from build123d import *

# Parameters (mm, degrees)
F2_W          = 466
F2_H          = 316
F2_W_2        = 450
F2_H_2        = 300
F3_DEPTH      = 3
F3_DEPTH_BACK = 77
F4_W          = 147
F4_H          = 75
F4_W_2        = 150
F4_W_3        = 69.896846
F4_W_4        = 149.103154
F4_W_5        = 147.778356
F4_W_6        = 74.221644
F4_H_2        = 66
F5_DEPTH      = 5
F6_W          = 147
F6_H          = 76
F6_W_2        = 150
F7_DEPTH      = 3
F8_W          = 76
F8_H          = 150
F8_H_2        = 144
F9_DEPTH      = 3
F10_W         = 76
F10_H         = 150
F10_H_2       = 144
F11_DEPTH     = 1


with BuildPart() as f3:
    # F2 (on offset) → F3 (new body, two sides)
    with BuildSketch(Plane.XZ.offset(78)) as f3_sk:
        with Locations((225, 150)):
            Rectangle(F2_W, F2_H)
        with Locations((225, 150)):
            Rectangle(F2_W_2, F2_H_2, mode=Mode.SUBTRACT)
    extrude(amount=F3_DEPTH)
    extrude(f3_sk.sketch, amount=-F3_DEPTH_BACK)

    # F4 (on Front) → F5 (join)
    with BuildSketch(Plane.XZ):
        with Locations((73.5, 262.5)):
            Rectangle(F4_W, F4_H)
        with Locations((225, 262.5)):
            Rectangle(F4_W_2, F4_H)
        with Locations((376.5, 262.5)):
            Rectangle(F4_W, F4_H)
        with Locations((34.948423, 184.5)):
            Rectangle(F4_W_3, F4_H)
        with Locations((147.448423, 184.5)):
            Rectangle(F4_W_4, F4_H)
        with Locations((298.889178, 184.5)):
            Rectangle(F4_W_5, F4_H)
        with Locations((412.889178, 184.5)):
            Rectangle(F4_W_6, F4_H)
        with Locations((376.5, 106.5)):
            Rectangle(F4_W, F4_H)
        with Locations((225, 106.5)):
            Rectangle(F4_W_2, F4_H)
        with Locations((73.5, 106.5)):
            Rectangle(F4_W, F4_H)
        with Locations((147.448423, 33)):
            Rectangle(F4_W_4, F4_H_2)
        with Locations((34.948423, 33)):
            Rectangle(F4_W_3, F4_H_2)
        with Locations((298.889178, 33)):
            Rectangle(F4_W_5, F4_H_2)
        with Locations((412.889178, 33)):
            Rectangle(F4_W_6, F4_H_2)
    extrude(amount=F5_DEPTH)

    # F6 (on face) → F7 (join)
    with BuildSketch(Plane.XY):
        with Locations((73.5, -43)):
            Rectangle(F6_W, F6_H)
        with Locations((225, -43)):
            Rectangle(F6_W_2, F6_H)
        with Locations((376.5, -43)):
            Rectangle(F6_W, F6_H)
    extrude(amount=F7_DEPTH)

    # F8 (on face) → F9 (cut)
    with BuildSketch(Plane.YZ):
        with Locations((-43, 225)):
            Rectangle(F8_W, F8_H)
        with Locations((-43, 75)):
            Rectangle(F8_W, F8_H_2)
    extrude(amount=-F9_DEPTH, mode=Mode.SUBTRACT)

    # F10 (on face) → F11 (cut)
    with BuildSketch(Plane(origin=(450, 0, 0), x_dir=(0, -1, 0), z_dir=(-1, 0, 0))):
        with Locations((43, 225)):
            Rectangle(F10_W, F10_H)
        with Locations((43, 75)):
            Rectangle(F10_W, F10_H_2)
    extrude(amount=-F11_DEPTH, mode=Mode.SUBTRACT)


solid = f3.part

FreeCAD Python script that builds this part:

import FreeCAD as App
import Part
import Sketcher
from FreeCAD import Vector

doc = App.newDocument("Part")
body = doc.addObject("PartDesign::Body", "Body")
body.AllowCompound = True

# Sketch on XZ plane
sketch1 = body.newObject("Sketcher::SketchObject", "Sketch")
sketch1.AttachmentSupport = (doc.getObject("XZ_Plane"), [""])
sketch1.MapMode = "FlatFace"
sketch1.AttachmentOffset = App.Placement(Vector(0, 0, 78), App.Rotation())
sketch1.addGeometry([
    Part.LineSegment(Vector(-8, 308, 0), Vector(-8, -8, 0)),  # 0
    Part.LineSegment(Vector(-8, -8, 0), Vector(458, -8, 0)),  # 1
    Part.LineSegment(Vector(458, -8, 0), Vector(458, 308, 0)),  # 2
    Part.LineSegment(Vector(458, 308, 0), Vector(-8, 308, 0)),  # 3
    Part.LineSegment(Vector(450, 0, 0), Vector(0, 0, 0)),  # 4
    Part.LineSegment(Vector(0, 0, 0), Vector(0, 300, 0)),  # 5
    Part.LineSegment(Vector(0, 300, 0), Vector(450, 300, 0)),  # 6
    Part.LineSegment(Vector(450, 300, 0), Vector(450, 0, 0)),  # 7
], False)
sketch1.addConstraint([
    Sketcher.Constraint("Coincident", 0, 2, 1, 1),
    Sketcher.Constraint("Coincident", 1, 2, 2, 1),
    Sketcher.Constraint("Coincident", 2, 2, 3, 1),
    Sketcher.Constraint("Coincident", 3, 2, 0, 1),
    Sketcher.Constraint("Coincident", 4, 2, 5, 1),
    Sketcher.Constraint("Coincident", 5, 2, 6, 1),
    Sketcher.Constraint("Coincident", 6, 2, 7, 1),
    Sketcher.Constraint("Coincident", 7, 2, 4, 1),
    Sketcher.Constraint("Vertical", 0),
    Sketcher.Constraint("Horizontal", 1),
    Sketcher.Constraint("Vertical", 2),
    Sketcher.Constraint("Horizontal", 3),
    Sketcher.Constraint("Horizontal", 4),
    Sketcher.Constraint("Vertical", 5),
    Sketcher.Constraint("Horizontal", 6),
    Sketcher.Constraint("Vertical", 7),
    Sketcher.Constraint("Coincident", 4, 2, -1, 1),
    Sketcher.Constraint("DistanceX", 1, 1, 1, 2, 466.0),
    Sketcher.Constraint("DistanceX", 4, 2, 4, 1, 450.0),
    Sketcher.Constraint("DistanceY", 0, 2, 0, 1, 316.0),
    Sketcher.Constraint("DistanceY", 5, 1, 5, 2, 300.0),
    Sketcher.Constraint("DistanceX", 0, 2, -1, 1, 8.0),
    Sketcher.Constraint("DistanceY", 0, 2, -1, 1, 8.0),
])
pad1 = body.newObject("PartDesign::Pad", "Pad")
pad1.Profile = sketch1
pad1.Type = "TwoLengths"
pad1.Length = 3
pad1.Length2 = 77

# Sketch on XZ plane
sketch2 = body.newObject("Sketcher::SketchObject", "Sketch001")
sketch2.AttachmentSupport = (doc.getObject("XZ_Plane"), [""])
sketch2.MapMode = "FlatFace"
sketch2.addGeometry([
    Part.LineSegment(Vector(0, 300, 0), Vector(0, 225, 0)),  # 0
    Part.LineSegment(Vector(0, 225, 0), Vector(147, 225, 0)),  # 1
    Part.LineSegment(Vector(147, 225, 0), Vector(147, 300, 0)),  # 2
    Part.LineSegment(Vector(147, 300, 0), Vector(0, 300, 0)),  # 3
    Part.LineSegment(Vector(150, 300, 0), Vector(150, 225, 0)),  # 4
    Part.LineSegment(Vector(150, 225, 0), Vector(300, 225, 0)),  # 5
    Part.LineSegment(Vector(300, 225, 0), Vector(300, 300, 0)),  # 6
    Part.LineSegment(Vector(300, 300, 0), Vector(150, 300, 0)),  # 7
    Part.LineSegment(Vector(303, 300, 0), Vector(303, 225, 0)),  # 8
    Part.LineSegment(Vector(303, 225, 0), Vector(450, 225, 0)),  # 9
    Part.LineSegment(Vector(450, 225, 0), Vector(450, 300, 0)),  # 10
    Part.LineSegment(Vector(450, 300, 0), Vector(303, 300, 0)),  # 11
    Part.LineSegment(Vector(0, 222, 0), Vector(0, 147, 0)),  # 12
    Part.LineSegment(Vector(0, 147, 0), Vector(70, 147, 0)),  # 13
    Part.LineSegment(Vector(70, 147, 0), Vector(70, 222, 0)),  # 14
    Part.LineSegment(Vector(70, 222, 0), Vector(0, 222, 0)),  # 15
    Part.LineSegment(Vector(73, 222, 0), Vector(73, 147, 0)),  # 16
    Part.LineSegment(Vector(73, 147, 0), Vector(222, 147, 0)),  # 17
    Part.LineSegment(Vector(222, 147, 0), Vector(222, 222, 0)),  # 18
    Part.LineSegment(Vector(222, 222, 0), Vector(73, 222, 0)),  # 19
    Part.LineSegment(Vector(225, 222, 0), Vector(225, 147, 0)),  # 20
    Part.LineSegment(Vector(225, 147, 0), Vector(373, 147, 0)),  # 21
    Part.LineSegment(Vector(373, 147, 0), Vector(373, 222, 0)),  # 22
    Part.LineSegment(Vector(373, 222, 0), Vector(225, 222, 0)),  # 23
    Part.LineSegment(Vector(376, 222, 0), Vector(376, 147, 0)),  # 24
    Part.LineSegment(Vector(376, 147, 0), Vector(450, 147, 0)),  # 25
    Part.LineSegment(Vector(450, 147, 0), Vector(450, 222, 0)),  # 26
    Part.LineSegment(Vector(450, 222, 0), Vector(376, 222, 0)),  # 27
    Part.LineSegment(Vector(303, 144, 0), Vector(303, 69, 0)),  # 28
    Part.LineSegment(Vector(303, 69, 0), Vector(450, 69, 0)),  # 29
    Part.LineSegment(Vector(450, 69, 0), Vector(450, 144, 0)),  # 30
    Part.LineSegment(Vector(450, 144, 0), Vector(303, 144, 0)),  # 31
    Part.LineSegment(Vector(150, 144, 0), Vector(150, 69, 0)),  # 32
    Part.LineSegment(Vector(150, 69, 0), Vector(300, 69, 0)),  # 33
    Part.LineSegment(Vector(300, 69, 0), Vector(300, 144, 0)),  # 34
    Part.LineSegment(Vector(300, 144, 0), Vector(150, 144, 0)),  # 35
    Part.LineSegment(Vector(0, 144, 0), Vector(0, 69, 0)),  # 36
    Part.LineSegment(Vector(0, 69, 0), Vector(147, 69, 0)),  # 37
    Part.LineSegment(Vector(147, 69, 0), Vector(147, 144, 0)),  # 38
    Part.LineSegment(Vector(147, 144, 0), Vector(0, 144, 0)),  # 39
    Part.LineSegment(Vector(73, 66, 0), Vector(73, 0, 0)),  # 40
    Part.LineSegment(Vector(73, 0, 0), Vector(222, 0, 0)),  # 41
    Part.LineSegment(Vector(222, 0, 0), Vector(222, 66, 0)),  # 42
    Part.LineSegment(Vector(222, 66, 0), Vector(73, 66, 0)),  # 43
    Part.LineSegment(Vector(0, 66, 0), Vector(0, 0, 0)),  # 44
    Part.LineSegment(Vector(0, 0, 0), Vector(70, 0, 0)),  # 45
    Part.LineSegment(Vector(70, 0, 0), Vector(70, 66, 0)),  # 46
    Part.LineSegment(Vector(70, 66, 0), Vector(0, 66, 0)),  # 47
    Part.LineSegment(Vector(225, 66, 0), Vector(225, 0, 0)),  # 48
    Part.LineSegment(Vector(225, 0, 0), Vector(373, 0, 0)),  # 49
    Part.LineSegment(Vector(373, 0, 0), Vector(373, 66, 0)),  # 50
    Part.LineSegment(Vector(373, 66, 0), Vector(225, 66, 0)),  # 51
    Part.LineSegment(Vector(376, 66, 0), Vector(376, 0, 0)),  # 52
    Part.LineSegment(Vector(376, 0, 0), Vector(450, 0, 0)),  # 53
    Part.LineSegment(Vector(450, 0, 0), Vector(450, 66, 0)),  # 54
    Part.LineSegment(Vector(450, 66, 0), Vector(376, 66, 0)),  # 55
], False)
sketch2.addConstraint([
    Sketcher.Constraint("Coincident", 0, 2, 1, 1),
    Sketcher.Constraint("Coincident", 1, 2, 2, 1),
    Sketcher.Constraint("Coincident", 2, 2, 3, 1),
    Sketcher.Constraint("Coincident", 3, 2, 0, 1),
    Sketcher.Constraint("Coincident", 4, 2, 5, 1),
    Sketcher.Constraint("Coincident", 5, 2, 6, 1),
    Sketcher.Constraint("Coincident", 6, 2, 7, 1),
    Sketcher.Constraint("Coincident", 7, 2, 4, 1),
    Sketcher.Constraint("Coincident", 8, 2, 9, 1),
    Sketcher.Constraint("Coincident", 9, 2, 10, 1),
    Sketcher.Constraint("Coincident", 10, 2, 11, 1),
    Sketcher.Constraint("Coincident", 11, 2, 8, 1),
    Sketcher.Constraint("Coincident", 12, 2, 13, 1),
    Sketcher.Constraint("Coincident", 13, 2, 14, 1),
    Sketcher.Constraint("Coincident", 14, 2, 15, 1),
    Sketcher.Constraint("Coincident", 15, 2, 12, 1),
    Sketcher.Constraint("Coincident", 16, 2, 17, 1),
    Sketcher.Constraint("Coincident", 17, 2, 18, 1),
    Sketcher.Constraint("Coincident", 18, 2, 19, 1),
    Sketcher.Constraint("Coincident", 19, 2, 16, 1),
    Sketcher.Constraint("Coincident", 20, 2, 21, 1),
    Sketcher.Constraint("Coincident", 21, 2, 22, 1),
    Sketcher.Constraint("Coincident", 22, 2, 23, 1),
    Sketcher.Constraint("Coincident", 23, 2, 20, 1),
    Sketcher.Constraint("Coincident", 24, 2, 25, 1),
    Sketcher.Constraint("Coincident", 25, 2, 26, 1),
    Sketcher.Constraint("Coincident", 26, 2, 27, 1),
    Sketcher.Constraint("Coincident", 27, 2, 24, 1),
    Sketcher.Constraint("Coincident", 28, 2, 29, 1),
    Sketcher.Constraint("Coincident", 29, 2, 30, 1),
    Sketcher.Constraint("Coincident", 30, 2, 31, 1),
    Sketcher.Constraint("Coincident", 31, 2, 28, 1),
    Sketcher.Constraint("Coincident", 32, 2, 33, 1),
    Sketcher.Constraint("Coincident", 33, 2, 34, 1),
    Sketcher.Constraint("Coincident", 34, 2, 35, 1),
    Sketcher.Constraint("Coincident", 35, 2, 32, 1),
    Sketcher.Constraint("Coincident", 36, 2, 37, 1),
    Sketcher.Constraint("Coincident", 37, 2, 38, 1),
    Sketcher.Constraint("Coincident", 38, 2, 39, 1),
    Sketcher.Constraint("Coincident", 39, 2, 36, 1),
    Sketcher.Constraint("Coincident", 40, 2, 41, 1),
    Sketcher.Constraint("Coincident", 41, 2, 42, 1),
    Sketcher.Constraint("Coincident", 42, 2, 43, 1),
    Sketcher.Constraint("Coincident", 43, 2, 40, 1),
    Sketcher.Constraint("Coincident", 44, 2, 45, 1),
    Sketcher.Constraint("Coincident", 45, 2, 46, 1),
    Sketcher.Constraint("Coincident", 46, 2, 47, 1),
    Sketcher.Constraint("Coincident", 47, 2, 44, 1),
    Sketcher.Constraint("Coincident", 48, 2, 49, 1),
    Sketcher.Constraint("Coincident", 49, 2, 50, 1),
    Sketcher.Constraint("Coincident", 50, 2, 51, 1),
    Sketcher.Constraint("Coincident", 51, 2, 48, 1),
    Sketcher.Constraint("Coincident", 52, 2, 53, 1),
    Sketcher.Constraint("Coincident", 53, 2, 54, 1),
    Sketcher.Constraint("Coincident", 54, 2, 55, 1),
    Sketcher.Constraint("Coincident", 55, 2, 52, 1),
    Sketcher.Constraint("Vertical", 0),
    Sketcher.Constraint("Horizontal", 1),
    Sketcher.Constraint("Vertical", 2),
    Sketcher.Constraint("Horizontal", 3),
    Sketcher.Constraint("Vertical", 4),
    Sketcher.Constraint("Horizontal", 5),
    Sketcher.Constraint("Vertical", 6),
    Sketcher.Constraint("Horizontal", 7),
    Sketcher.Constraint("Vertical", 8),
    Sketcher.Constraint("Horizontal", 9),
    Sketcher.Constraint("Vertical", 10),
    Sketcher.Constraint("Horizontal", 11),
    Sketcher.Constraint("Vertical", 12),
    Sketcher.Constraint("Horizontal", 13),
    Sketcher.Constraint("Vertical", 14),
    Sketcher.Constraint("Horizontal", 15),
    Sketcher.Constraint("Vertical", 16),
    Sketcher.Constraint("Horizontal", 17),
    Sketcher.Constraint("Vertical", 18),
    Sketcher.Constraint("Horizontal", 19),
    Sketcher.Constraint("Vertical", 20),
    Sketcher.Constraint("Horizontal", 21),
    Sketcher.Constraint("Vertical", 22),
    Sketcher.Constraint("Horizontal", 23),
    Sketcher.Constraint("Vertical", 24),
    Sketcher.Constraint("Horizontal", 25),
    Sketcher.Constraint("Vertical", 26),
    Sketcher.Constraint("Horizontal", 27),
    Sketcher.Constraint("Vertical", 28),
    Sketcher.Constraint("Horizontal", 29),
    Sketcher.Constraint("Vertical", 30),
    Sketcher.Constraint("Horizontal", 31),
    Sketcher.Constraint("Vertical", 32),
    Sketcher.Constraint("Horizontal", 33),
    Sketcher.Constraint("Vertical", 34),
    Sketcher.Constraint("Horizontal", 35),
    Sketcher.Constraint("Vertical", 36),
    Sketcher.Constraint("Horizontal", 37),
    Sketcher.Constraint("Vertical", 38),
    Sketcher.Constraint("Horizontal", 39),
    Sketcher.Constraint("Vertical", 40),
    Sketcher.Constraint("Horizontal", 41),
    Sketcher.Constraint("Vertical", 42),
    Sketcher.Constraint("Horizontal", 43),
    Sketcher.Constraint("Vertical", 44),
    Sketcher.Constraint("Horizontal", 45),
    Sketcher.Constraint("Vertical", 46),
    Sketcher.Constraint("Horizontal", 47),
    Sketcher.Constraint("Vertical", 48),
    Sketcher.Constraint("Horizontal", 49),
    Sketcher.Constraint("Vertical", 50),
    Sketcher.Constraint("Horizontal", 51),
    Sketcher.Constraint("Vertical", 52),
    Sketcher.Constraint("Horizontal", 53),
    Sketcher.Constraint("Vertical", 54),
    Sketcher.Constraint("Horizontal", 55),
    Sketcher.Constraint("Coincident", 44, 2, -1, 1),
    Sketcher.Constraint("PointOnObject", 0, 2, -2),
    Sketcher.Constraint("PointOnObject", 12, 2, -2),
    Sketcher.Constraint("PointOnObject", 36, 2, -2),
    Sketcher.Constraint("PointOnObject", 40, 2, -1),
    Sketcher.Constraint("PointOnObject", 48, 2, -1),
    Sketcher.Constraint("PointOnObject", 52, 2, -1),
    Sketcher.Constraint("Horizontal", 1, 2, 4, 2),
    Sketcher.Constraint("Horizontal", 3, 2, 6, 2),
    Sketcher.Constraint("Horizontal", 5, 2, 8, 2),
    Sketcher.Constraint("Horizontal", 7, 2, 10, 2),
    Sketcher.Constraint("Horizontal", 13, 2, 16, 2),
    Sketcher.Constraint("Horizontal", 15, 2, 18, 2),
    Sketcher.Constraint("Horizontal", 17, 2, 20, 2),
    Sketcher.Constraint("Horizontal", 19, 2, 22, 2),
    Sketcher.Constraint("Horizontal", 21, 2, 24, 2),
    Sketcher.Constraint("Horizontal", 23, 2, 26, 2),
    Sketcher.Constraint("Horizontal", 29, 2, 32, 2),
    Sketcher.Constraint("Horizontal", 31, 2, 34, 2),
    Sketcher.Constraint("Horizontal", 33, 2, 36, 2),
    Sketcher.Constraint("Horizontal", 35, 2, 38, 2),
    Sketcher.Constraint("Horizontal", 43, 2, 46, 2),
    Sketcher.Constraint("Horizontal", 47, 2, 50, 2),
    Sketcher.Constraint("Horizontal", 51, 2, 54, 2),
    Sketcher.Constraint("Vertical", 10, 2, 25, 2),
    Sketcher.Constraint("Vertical", 11, 2, 28, 2),
    Sketcher.Constraint("Vertical", 26, 2, 29, 2),
    Sketcher.Constraint("Vertical", 7, 2, 32, 2),
    Sketcher.Constraint("Vertical", 6, 2, 33, 2),
    Sketcher.Constraint("Vertical", 2, 2, 37, 2),
    Sketcher.Constraint("Vertical", 19, 2, 40, 2),
    Sketcher.Constraint("Vertical", 18, 2, 41, 2),
    Sketcher.Constraint("Vertical", 14, 2, 45, 2),
    Sketcher.Constraint("Vertical", 23, 2, 48, 2),
    Sketcher.Constraint("Vertical", 22, 2, 49, 2),
    Sketcher.Constraint("Vertical", 27, 2, 52, 2),
    Sketcher.Constraint("Vertical", 30, 2, 53, 2),
    Sketcher.Constraint("Equal", 3, 9),
    Sketcher.Constraint("Equal", 10, 12),
    Sketcher.Constraint("Equal", 26, 28),
    Sketcher.Constraint("DistanceX", 1, 1, 1, 2, 147.0),
    Sketcher.Constraint("DistanceX", 5, 1, 5, 2, 150.0),
    Sketcher.Constraint("DistanceY", 0, 2, 0, 1, 75.0),
    Sketcher.Constraint("DistanceY", 40, 2, 40, 1, 66.0),
    Sketcher.Constraint("DistanceY", -1, 1, 0, 2, 225.0),
    Sketcher.Constraint("DistanceX", -1, 1, 4, 2, 150.0),
    Sketcher.Constraint("DistanceX", -1, 1, 8, 2, 303.0),
    Sketcher.Constraint("DistanceY", -1, 1, 12, 2, 147.0),
    Sketcher.Constraint("DistanceX", -1, 1, 17, 2, 222.0),
    Sketcher.Constraint("DistanceX", -1, 1, 20, 2, 225.0),
    Sketcher.Constraint("DistanceY", -1, 1, 28, 2, 69.0),
    Sketcher.Constraint("DistanceX", 13, 2, 16, 2, 3.0),
    Sketcher.Constraint("DistanceX", 21, 2, 24, 2, 3.0),
    Sketcher.Constraint("DistanceX", 13, 1, 13, 2, 69.896846),
    Sketcher.Constraint("DistanceX", 21, 1, 21, 2, 147.778356),
])
pad2 = body.newObject("PartDesign::Pad", "Pad001")
pad2.Profile = sketch2
pad2.Length = 5

# Sketch on XY plane
sketch3 = body.newObject("Sketcher::SketchObject", "Sketch002")
sketch3.AttachmentSupport = (doc.getObject("XY_Plane"), [""])
sketch3.MapMode = "FlatFace"
sketch3.addGeometry([
    Part.LineSegment(Vector(0, -5, 0), Vector(0, -81, 0)),  # 0
    Part.LineSegment(Vector(0, -81, 0), Vector(147, -81, 0)),  # 1
    Part.LineSegment(Vector(147, -81, 0), Vector(147, -5, 0)),  # 2
    Part.LineSegment(Vector(147, -5, 0), Vector(0, -5, 0)),  # 3
    Part.LineSegment(Vector(150, -5, 0), Vector(150, -81, 0)),  # 4
    Part.LineSegment(Vector(150, -81, 0), Vector(300, -81, 0)),  # 5
    Part.LineSegment(Vector(300, -81, 0), Vector(300, -5, 0)),  # 6
    Part.LineSegment(Vector(300, -5, 0), Vector(150, -5, 0)),  # 7
    Part.LineSegment(Vector(303, -5, 0), Vector(303, -81, 0)),  # 8
    Part.LineSegment(Vector(303, -81, 0), Vector(450, -81, 0)),  # 9
    Part.LineSegment(Vector(450, -81, 0), Vector(450, -5, 0)),  # 10
    Part.LineSegment(Vector(450, -5, 0), Vector(303, -5, 0)),  # 11
], False)
sketch3.addConstraint([
    Sketcher.Constraint("Coincident", 0, 2, 1, 1),
    Sketcher.Constraint("Coincident", 1, 2, 2, 1),
    Sketcher.Constraint("Coincident", 2, 2, 3, 1),
    Sketcher.Constraint("Coincident", 3, 2, 0, 1),
    Sketcher.Constraint("Coincident", 4, 2, 5, 1),
    Sketcher.Constraint("Coincident", 5, 2, 6, 1),
    Sketcher.Constraint("Coincident", 6, 2, 7, 1),
    Sketcher.Constraint("Coincident", 7, 2, 4, 1),
    Sketcher.Constraint("Coincident", 8, 2, 9, 1),
    Sketcher.Constraint("Coincident", 9, 2, 10, 1),
    Sketcher.Constraint("Coincident", 10, 2, 11, 1),
    Sketcher.Constraint("Coincident", 11, 2, 8, 1),
    Sketcher.Constraint("Vertical", 0),
    Sketcher.Constraint("Horizontal", 1),
    Sketcher.Constraint("Vertical", 2),
    Sketcher.Constraint("Horizontal", 3),
    Sketcher.Constraint("Vertical", 4),
    Sketcher.Constraint("Horizontal", 5),
    Sketcher.Constraint("Vertical", 6),
    Sketcher.Constraint("Horizontal", 7),
    Sketcher.Constraint("Vertical", 8),
    Sketcher.Constraint("Horizontal", 9),
    Sketcher.Constraint("Vertical", 10),
    Sketcher.Constraint("Horizontal", 11),
    Sketcher.Constraint("PointOnObject", 0, 2, -2),
    Sketcher.Constraint("Horizontal", 1, 2, 4, 2),
    Sketcher.Constraint("Horizontal", 3, 2, 6, 2),
    Sketcher.Constraint("Horizontal", 5, 2, 8, 2),
    Sketcher.Constraint("Horizontal", 7, 2, 10, 2),
    Sketcher.Constraint("Equal", 3, 9),
    Sketcher.Constraint("DistanceX", 1, 1, 1, 2, 147.0),
    Sketcher.Constraint("DistanceX", 5, 1, 5, 2, 150.0),
    Sketcher.Constraint("DistanceY", 0, 2, 0, 1, 76.0),
    Sketcher.Constraint("DistanceY", 0, 2, -1, 1, 81.0),
    Sketcher.Constraint("DistanceX", -1, 1, 4, 2, 150.0),
    Sketcher.Constraint("DistanceX", -1, 1, 8, 2, 303.0),
])
pad3 = body.newObject("PartDesign::Pad", "Pad002")
pad3.Profile = sketch3
pad3.Length = 3

# Sketch on YZ plane
sketch4 = body.newObject("Sketcher::SketchObject", "Sketch003")
sketch4.AttachmentSupport = (doc.getObject("YZ_Plane"), [""])
sketch4.MapMode = "FlatFace"
sketch4.addGeometry([
    Part.LineSegment(Vector(-81, 300, 0), Vector(-81, 150, 0)),  # 0
    Part.LineSegment(Vector(-81, 150, 0), Vector(-5, 150, 0)),  # 1
    Part.LineSegment(Vector(-5, 150, 0), Vector(-5, 300, 0)),  # 2
    Part.LineSegment(Vector(-5, 300, 0), Vector(-81, 300, 0)),  # 3
    Part.LineSegment(Vector(-81, 147, 0), Vector(-81, 3, 0)),  # 4
    Part.LineSegment(Vector(-81, 3, 0), Vector(-5, 3, 0)),  # 5
    Part.LineSegment(Vector(-5, 3, 0), Vector(-5, 147, 0)),  # 6
    Part.LineSegment(Vector(-5, 147, 0), Vector(-81, 147, 0)),  # 7
], False)
sketch4.addConstraint([
    Sketcher.Constraint("Coincident", 0, 2, 1, 1),
    Sketcher.Constraint("Coincident", 1, 2, 2, 1),
    Sketcher.Constraint("Coincident", 2, 2, 3, 1),
    Sketcher.Constraint("Coincident", 3, 2, 0, 1),
    Sketcher.Constraint("Coincident", 4, 2, 5, 1),
    Sketcher.Constraint("Coincident", 5, 2, 6, 1),
    Sketcher.Constraint("Coincident", 6, 2, 7, 1),
    Sketcher.Constraint("Coincident", 7, 2, 4, 1),
    Sketcher.Constraint("Vertical", 0),
    Sketcher.Constraint("Horizontal", 1),
    Sketcher.Constraint("Vertical", 2),
    Sketcher.Constraint("Horizontal", 3),
    Sketcher.Constraint("Vertical", 4),
    Sketcher.Constraint("Horizontal", 5),
    Sketcher.Constraint("Vertical", 6),
    Sketcher.Constraint("Horizontal", 7),
    Sketcher.Constraint("Vertical", 3, 2, 4, 2),
    Sketcher.Constraint("Vertical", 2, 2, 5, 2),
    Sketcher.Constraint("DistanceX", 1, 1, 1, 2, 76.0),
    Sketcher.Constraint("DistanceY", 0, 2, 0, 1, 150.0),
    Sketcher.Constraint("DistanceY", 4, 2, 4, 1, 144.0),
    Sketcher.Constraint("DistanceX", 0, 2, -1, 1, 81.0),
    Sketcher.Constraint("DistanceY", -1, 1, 0, 2, 150.0),
    Sketcher.Constraint("DistanceY", -1, 1, 4, 2, 3.0),
])
pocket1 = body.newObject("PartDesign::Pocket", "Pocket")
pocket1.Profile = sketch4
pocket1.Length = 3

# Sketch on YZ plane
sketch5 = body.newObject("Sketcher::SketchObject", "Sketch004")
sketch5.AttachmentSupport = (doc.getObject("YZ_Plane"), [""])
sketch5.MapMode = "FlatFace"
sketch5.AttachmentOffset = App.Placement(Vector(0, 0, 450), App.Rotation())
sketch5.addGeometry([
    Part.LineSegment(Vector(-5, 300, 0), Vector(-5, 150, 0)),  # 0
    Part.LineSegment(Vector(-5, 150, 0), Vector(-81, 150, 0)),  # 1
    Part.LineSegment(Vector(-81, 150, 0), Vector(-81, 300, 0)),  # 2
    Part.LineSegment(Vector(-81, 300, 0), Vector(-5, 300, 0)),  # 3
    Part.LineSegment(Vector(-5, 147, 0), Vector(-5, 3, 0)),  # 4
    Part.LineSegment(Vector(-5, 3, 0), Vector(-81, 3, 0)),  # 5
    Part.LineSegment(Vector(-81, 3, 0), Vector(-81, 147, 0)),  # 6
    Part.LineSegment(Vector(-81, 147, 0), Vector(-5, 147, 0)),  # 7
], False)
sketch5.addConstraint([
    Sketcher.Constraint("Coincident", 0, 2, 1, 1),
    Sketcher.Constraint("Coincident", 1, 2, 2, 1),
    Sketcher.Constraint("Coincident", 2, 2, 3, 1),
    Sketcher.Constraint("Coincident", 3, 2, 0, 1),
    Sketcher.Constraint("Coincident", 4, 2, 5, 1),
    Sketcher.Constraint("Coincident", 5, 2, 6, 1),
    Sketcher.Constraint("Coincident", 6, 2, 7, 1),
    Sketcher.Constraint("Coincident", 7, 2, 4, 1),
    Sketcher.Constraint("Vertical", 0),
    Sketcher.Constraint("Horizontal", 1),
    Sketcher.Constraint("Vertical", 2),
    Sketcher.Constraint("Horizontal", 3),
    Sketcher.Constraint("Vertical", 4),
    Sketcher.Constraint("Horizontal", 5),
    Sketcher.Constraint("Vertical", 6),
    Sketcher.Constraint("Horizontal", 7),
    Sketcher.Constraint("Vertical", 3, 2, 4, 2),
    Sketcher.Constraint("Vertical", 2, 2, 5, 2),
    Sketcher.Constraint("DistanceX", 1, 2, 1, 1, 76.0),
    Sketcher.Constraint("DistanceY", 0, 2, 0, 1, 150.0),
    Sketcher.Constraint("DistanceY", 4, 2, 4, 1, 144.0),
    Sketcher.Constraint("DistanceX", 0, 2, -1, 1, 5.0),
    Sketcher.Constraint("DistanceY", -1, 1, 0, 2, 150.0),
    Sketcher.Constraint("DistanceY", -1, 1, 4, 2, 3.0),
])
pocket2 = body.newObject("PartDesign::Pocket", "Pocket001")
pocket2.Profile = sketch5
pocket2.Length = 1
pocket2.Reversed = True

doc.recompute()
